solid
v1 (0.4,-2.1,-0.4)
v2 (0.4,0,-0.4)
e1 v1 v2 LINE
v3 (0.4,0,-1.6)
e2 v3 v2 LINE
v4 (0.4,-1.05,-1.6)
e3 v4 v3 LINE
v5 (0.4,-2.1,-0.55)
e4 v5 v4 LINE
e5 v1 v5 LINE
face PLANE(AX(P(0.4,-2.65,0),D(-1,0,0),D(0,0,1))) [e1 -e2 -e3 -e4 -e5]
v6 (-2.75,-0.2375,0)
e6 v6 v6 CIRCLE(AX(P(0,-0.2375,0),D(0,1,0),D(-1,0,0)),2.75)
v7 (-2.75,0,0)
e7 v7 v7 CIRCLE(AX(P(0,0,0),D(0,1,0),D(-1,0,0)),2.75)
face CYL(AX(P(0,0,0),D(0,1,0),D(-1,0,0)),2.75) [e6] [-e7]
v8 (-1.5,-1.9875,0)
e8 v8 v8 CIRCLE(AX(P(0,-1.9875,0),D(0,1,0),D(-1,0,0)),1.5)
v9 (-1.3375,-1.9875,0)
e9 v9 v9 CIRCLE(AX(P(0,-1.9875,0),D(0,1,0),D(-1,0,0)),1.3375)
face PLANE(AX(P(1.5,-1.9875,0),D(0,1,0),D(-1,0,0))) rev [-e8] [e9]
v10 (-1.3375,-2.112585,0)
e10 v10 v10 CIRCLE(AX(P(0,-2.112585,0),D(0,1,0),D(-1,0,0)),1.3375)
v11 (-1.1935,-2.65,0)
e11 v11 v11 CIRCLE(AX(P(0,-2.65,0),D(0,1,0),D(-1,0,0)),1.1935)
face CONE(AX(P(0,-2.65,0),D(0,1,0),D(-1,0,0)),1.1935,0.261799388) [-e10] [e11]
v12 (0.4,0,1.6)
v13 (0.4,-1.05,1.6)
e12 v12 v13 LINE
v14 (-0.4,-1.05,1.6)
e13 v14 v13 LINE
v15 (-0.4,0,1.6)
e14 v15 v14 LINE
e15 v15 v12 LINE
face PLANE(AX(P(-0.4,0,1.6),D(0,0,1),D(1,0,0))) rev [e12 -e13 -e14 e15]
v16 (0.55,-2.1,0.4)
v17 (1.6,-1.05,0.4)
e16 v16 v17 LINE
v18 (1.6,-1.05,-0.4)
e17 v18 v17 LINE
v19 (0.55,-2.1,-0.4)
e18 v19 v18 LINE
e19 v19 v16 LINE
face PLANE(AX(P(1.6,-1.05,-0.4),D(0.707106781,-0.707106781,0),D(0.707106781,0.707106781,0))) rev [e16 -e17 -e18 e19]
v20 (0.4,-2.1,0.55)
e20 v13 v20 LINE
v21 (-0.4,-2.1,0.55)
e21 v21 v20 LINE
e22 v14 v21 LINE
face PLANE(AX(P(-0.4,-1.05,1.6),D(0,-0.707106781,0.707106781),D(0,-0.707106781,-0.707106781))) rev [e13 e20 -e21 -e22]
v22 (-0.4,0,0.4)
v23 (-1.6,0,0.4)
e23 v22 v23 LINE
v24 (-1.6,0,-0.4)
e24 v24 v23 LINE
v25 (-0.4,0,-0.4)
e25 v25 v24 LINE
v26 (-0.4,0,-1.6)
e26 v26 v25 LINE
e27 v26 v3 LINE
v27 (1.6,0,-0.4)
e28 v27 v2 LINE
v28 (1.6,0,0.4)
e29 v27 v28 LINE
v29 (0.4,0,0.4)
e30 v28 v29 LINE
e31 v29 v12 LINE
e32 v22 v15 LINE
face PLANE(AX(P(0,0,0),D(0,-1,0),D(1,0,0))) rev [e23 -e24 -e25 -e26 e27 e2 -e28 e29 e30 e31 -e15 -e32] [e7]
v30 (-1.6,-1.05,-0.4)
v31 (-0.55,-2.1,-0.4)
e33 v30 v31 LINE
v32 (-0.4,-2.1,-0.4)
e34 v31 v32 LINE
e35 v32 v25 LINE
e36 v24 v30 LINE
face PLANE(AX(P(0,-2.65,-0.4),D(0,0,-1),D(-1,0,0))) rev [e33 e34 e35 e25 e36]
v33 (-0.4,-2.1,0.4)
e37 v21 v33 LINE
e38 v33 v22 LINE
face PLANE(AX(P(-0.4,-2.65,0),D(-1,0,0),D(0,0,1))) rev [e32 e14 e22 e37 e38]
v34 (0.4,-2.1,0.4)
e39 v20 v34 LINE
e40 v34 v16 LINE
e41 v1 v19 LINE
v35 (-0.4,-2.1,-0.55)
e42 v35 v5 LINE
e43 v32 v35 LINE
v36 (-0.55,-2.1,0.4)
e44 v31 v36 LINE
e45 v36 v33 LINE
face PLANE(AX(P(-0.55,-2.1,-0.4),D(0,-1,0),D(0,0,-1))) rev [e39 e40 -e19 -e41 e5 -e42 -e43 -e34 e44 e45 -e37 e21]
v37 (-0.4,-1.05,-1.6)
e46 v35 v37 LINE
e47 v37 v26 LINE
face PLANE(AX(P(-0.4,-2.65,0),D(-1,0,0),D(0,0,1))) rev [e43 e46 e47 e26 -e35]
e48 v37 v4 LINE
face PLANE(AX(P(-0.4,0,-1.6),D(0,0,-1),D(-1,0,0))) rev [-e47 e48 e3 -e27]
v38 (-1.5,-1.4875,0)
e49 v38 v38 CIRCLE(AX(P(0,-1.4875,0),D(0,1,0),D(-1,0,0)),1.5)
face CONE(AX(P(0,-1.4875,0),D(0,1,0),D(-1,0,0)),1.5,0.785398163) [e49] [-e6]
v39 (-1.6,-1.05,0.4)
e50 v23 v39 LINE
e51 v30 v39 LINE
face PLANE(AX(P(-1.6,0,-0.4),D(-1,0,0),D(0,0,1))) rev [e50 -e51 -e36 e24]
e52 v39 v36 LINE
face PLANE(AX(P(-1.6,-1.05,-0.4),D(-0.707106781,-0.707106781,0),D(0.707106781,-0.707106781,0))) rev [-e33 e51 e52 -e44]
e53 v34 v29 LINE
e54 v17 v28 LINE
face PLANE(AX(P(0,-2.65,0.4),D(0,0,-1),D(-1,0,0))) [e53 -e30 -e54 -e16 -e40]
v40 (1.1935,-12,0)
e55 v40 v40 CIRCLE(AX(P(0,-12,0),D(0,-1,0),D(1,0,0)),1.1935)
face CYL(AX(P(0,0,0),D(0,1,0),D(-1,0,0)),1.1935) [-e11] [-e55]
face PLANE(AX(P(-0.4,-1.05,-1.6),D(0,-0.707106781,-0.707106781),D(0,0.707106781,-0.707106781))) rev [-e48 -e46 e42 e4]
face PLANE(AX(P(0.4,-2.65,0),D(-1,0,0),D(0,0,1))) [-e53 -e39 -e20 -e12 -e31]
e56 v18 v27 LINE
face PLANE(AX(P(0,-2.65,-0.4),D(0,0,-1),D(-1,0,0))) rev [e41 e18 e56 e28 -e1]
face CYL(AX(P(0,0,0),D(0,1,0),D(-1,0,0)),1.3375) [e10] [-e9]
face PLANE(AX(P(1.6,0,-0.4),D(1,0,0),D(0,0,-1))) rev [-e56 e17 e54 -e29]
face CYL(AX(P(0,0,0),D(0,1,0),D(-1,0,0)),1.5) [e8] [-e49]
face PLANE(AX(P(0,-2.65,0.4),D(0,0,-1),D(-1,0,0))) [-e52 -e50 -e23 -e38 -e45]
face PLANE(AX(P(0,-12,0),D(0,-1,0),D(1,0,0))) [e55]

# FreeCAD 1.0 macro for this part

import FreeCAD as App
import Part
import Sketcher
Q = App.Units.Quantity

doc = App.newDocument("Part")
body = doc.addObject("PartDesign::Body", "Body")

sketch1 = doc.addObject("Sketcher::SketchObject", "Sketch")
body.addObject(sketch1)
sketch1.AttachmentSupport = (doc.XY_Plane, [""])
sketch1.MapMode = "FlatFace"
sketch1.addGeometry(Part.LineSegment(App.Vector(2.75, 0, 0), App.Vector(0, 0, 0)), False)
sketch1.addGeometry(Part.LineSegment(App.Vector(0, 0, 0), App.Vector(0, -8, 0)), False)
sketch1.addGeometry(Part.LineSegment(App.Vector(0, -8, 0), App.Vector(1.1935, -8, 0)), False)
sketch1.addGeometry(Part.LineSegment(App.Vector(1.1935, -8, 0), App.Vector(1.1935, -2.65, 0)), False)
sketch1.addGeometry(Part.LineSegment(App.Vector(1.1935, -2.65, 0), App.Vector(1.3375, -2.112585, 0)), False)
sketch1.addGeometry(Part.LineSegment(App.Vector(1.3375, -2.112585, 0), App.Vector(1.3375, -1.9875, 0)), False)
sketch1.addGeometry(Part.LineSegment(App.Vector(1.3375, -1.9875, 0), App.Vector(1.5, -1.9875, 0)), False)
sketch1.addGeometry(Part.LineSegment(App.Vector(1.5, -1.9875, 0), App.Vector(1.5, -1.4875, 0)), False)
sketch1.addGeometry(Part.LineSegment(App.Vector(1.5, -1.4875, 0), App.Vector(2.75, -0.2375, 0)), False)
sketch1.addGeometry(Part.LineSegment(App.Vector(2.75, -0.2375, 0), App.Vector(2.75, 0, 0)), False)
sketch1.addConstraint(Sketcher.Constraint("Coincident", 0, 2, 1, 1))
sketch1.addConstraint(Sketcher.Constraint("Coincident", 1, 2, 2, 1))
sketch1.addConstraint(Sketcher.Constraint("Coincident", 2, 2, 3, 1))
sketch1.addConstraint(Sketcher.Constraint("Coincident", 3, 2, 4, 1))
sketch1.addConstraint(Sketcher.Constraint("Coincident", 4, 2, 5, 1))
sketch1.addConstraint(Sketcher.Constraint("Coincident", 5, 2, 6, 1))
sketch1.addConstraint(Sketcher.Constraint("Coincident", 6, 2, 7, 1))
sketch1.addConstraint(Sketcher.Constraint("Coincident", 7, 2, 8, 1))
sketch1.addConstraint(Sketcher.Constraint("Coincident", 8, 2, 9, 1))
sketch1.addConstraint(Sketcher.Constraint("Coincident", 9, 2, 0, 1))
sketch1.addConstraint(Sketcher.Constraint("Horizontal", 0))
sketch1.addConstraint(Sketcher.Constraint("Vertical", 1))
sketch1.addConstraint(Sketcher.Constraint("Horizontal", 2))
sketch1.addConstraint(Sketcher.Constraint("Vertical", 3))
sketch1.addConstraint(Sketcher.Constraint("Vertical", 5))
sketch1.addConstraint(Sketcher.Constraint("Horizontal", 6))
sketch1.addConstraint(Sketcher.Constraint("Vertical", 7))
sketch1.addConstraint(Sketcher.Constraint("Vertical", 9))
sketch1.addConstraint(Sketcher.Constraint("Coincident", 0, 2, -1, 1))
sketch1.addConstraint(Sketcher.Constraint("DistanceY", 1, 2, 1, 1, 8.0))
sketch1.addConstraint(Sketcher.Constraint("Angle", 4, Q("75 deg")))
sketch1.addConstraint(Sketcher.Constraint("Angle", 8, Q("45 deg")))
sketch1.addConstraint(Sketcher.Constraint("DistanceY", 7, 1, 7, 2, 0.5))
sketch1.addConstraint(Sketcher.Constraint("DistanceX", 0, 2, 0, 1, 2.75))
sketch1.addConstraint(Sketcher.Constraint("DistanceY", 3, 1, 3, 2, 5.35))
sketch1.addConstraint(Sketcher.Constraint("DistanceX", -1, 1, 6, 2, 1.5))
sketch1.addConstraint(Sketcher.Constraint("DistanceX", 2, 1, 2, 2, 1.1935))
sketch1.addConstraint(Sketcher.Constraint("DistanceX", 6, 1, 6, 2, 0.1625))
sketch1.addConstraint(Sketcher.Constraint("DistanceY", 9, 1, 9, 2, 0.2375))
revolution = doc.addObject("PartDesign::Revolution", "Revolution")
body.addObject(revolution)
revolution.Profile = sketch1
revolution.ReferenceAxis = (sketch1, ["V_Axis"])
revolution.Angle = 360

sketch2 = doc.addObject("Sketcher::SketchObject", "Sketch001")
body.addObject(sketch2)
sketch2.AttachmentSupport = (doc.XY_Plane, [""])
sketch2.MapMode = "FlatFace"
sketch2.addGeometry(Part.LineSegment(App.Vector(-0.55, -2.1, 0), App.Vector(0.55, -2.1, 0)), False)
sketch2.addGeometry(Part.LineSegment(App.Vector(0.55, -2.1, 0), App.Vector(1.6, -1.05, 0)), False)
sketch2.addGeometry(Part.LineSegment(App.Vector(1.6, -1.05, 0), App.Vector(1.6, 0, 0)), False)
sketch2.addGeometry(Part.LineSegment(App.Vector(1.6, 0, 0), App.Vector(-1.6, 0, 0)), False)
sketch2.addGeometry(Part.LineSegment(App.Vector(-1.6, 0, 0), App.Vector(-1.6, -1.05, 0)), False)
sketch2.addGeometry(Part.LineSegment(App.Vector(-1.6, -1.05, 0), App.Vector(-0.55, -2.1, 0)), False)
sketch2.addConstraint(Sketcher.Constraint("Coincident", 0, 2, 1, 1))
sketch2.addConstraint(Sketcher.Constraint("Coincident", 1, 2, 2, 1))
sketch2.addConstraint(Sketcher.Constraint("Coincident", 2, 2, 3, 1))
sketch2.addConstraint(Sketcher.Constraint("Coincident", 3, 2, 4, 1))
sketch2.addConstraint(Sketcher.Constraint("Coincident", 4, 2, 5, 1))
sketch2.addConstraint(Sketcher.Constraint("Coincident", 5, 2, 0, 1))
sketch2.addConstraint(Sketcher.Constraint("Horizontal", 0))
sketch2.addConstraint(Sketcher.Constraint("Vertical", 2))
sketch2.addConstraint(Sketcher.Constraint("Horizontal", 3))
sketch2.addConstraint(Sketcher.Constraint("Vertical", 4))
sketch2.addConstraint(Sketcher.Constraint("Symmetric", 2, 2, 3, 2, -1, 1))
sketch2.addConstraint(Sketcher.Constraint("Perpendicular", 1, 5))
sketch2.addConstraint(Sketcher.Constraint("Horizontal", 1, 2, 4, 2))
sketch2.addConstraint(Sketcher.Constraint("Equal", 1, 5))
sketch2.addConstraint(Sketcher.Constraint("DistanceX", 0, 1, 0, 2, 1.1))
sketch2.addConstraint(Sketcher.Constraint("DistanceX", 3, 2, 3, 1, 3.2))
sketch2.addConstraint(Sketcher.Constraint("DistanceY", 2, 1, 2, 2, 1.05))
pocket1 = doc.addObject("PartDesign::Pocket", "Pocket")
body.addObject(pocket1)
pocket1.Profile = sketch2
pocket1.Type = "TwoLengths"
pocket1.Length = 0.4
pocket1.Length2 = 0.4
pocket1.Reversed = True

sketch3 = doc.addObject("Sketcher::SketchObject", "Sketch002")
body.addObject(sketch3)
sketch3.AttachmentSupport = (doc.YZ_Plane, [""])
sketch3.MapMode = "FlatFace"
sketch3.addGeometry(Part.LineSegment(App.Vector(-2.1, 0.55, 0), App.Vector(-2.1, -0.55, 0)), False)
sketch3.addGeometry(Part.LineSegment(App.Vector(-2.1, -0.55, 0), App.Vector(-1.05, -1.6, 0)), False)
sketch3.addGeometry(Part.LineSegment(App.Vector(-1.05, -1.6, 0), App.Vector(0, -1.6, 0)), False)
sketch3.addGeometry(Part.LineSegment(App.Vector(0, -1.6, 0), App.Vector(0, 1.6, 0)), False)
sketch3.addGeometry(Part.LineSegment(App.Vector(0, 1.6, 0), App.Vector(-1.05, 1.6, 0)), False)
sketch3.addGeometry(Part.LineSegment(App.Vector(-1.05, 1.6, 0), App.Vector(-2.1, 0.55, 0)), False)
sketch3.addConstraint(Sketcher.Constraint("Coincident", 0, 2, 1, 1))
sketch3.addConstraint(Sketcher.Constraint("Coincident", 1, 2, 2, 1))
sketch3.addConstraint(Sketcher.Constraint("Coincident", 2, 2, 3, 1))
sketch3.addConstraint(Sketcher.Constraint("Coincident", 3, 2, 4, 1))
sketch3.addConstraint(Sketcher.Constraint("Coincident", 4, 2, 5, 1))
sketch3.addConstraint(Sketcher.Constraint("Coincident", 5, 2, 0, 1))
sketch3.addConstraint(Sketcher.Constraint("Vertical", 0))
sketch3.addConstraint(Sketcher.Constraint("Horizontal", 2))
sketch3.addConstraint(Sketcher.Constraint("Vertical", 3))
sketch3.addConstraint(Sketcher.Constraint("Horizontal", 4))
sketch3.addConstraint(Sketcher.Constraint("Symmetric", 2, 2, 3, 2, -1, 1))
sketch3.addConstraint(Sketcher.Constraint("Perpendicular", 1, 5))
sketch3.addConstraint(Sketcher.Constraint("Vertical", 1, 2, 4, 2))
sketch3.addConstraint(Sketcher.Constraint("Equal", 1, 5))
sketch3.addConstraint(Sketcher.Constraint("DistanceY", 0, 2, 0, 1, 1.1))
sketch3.addConstraint(Sketcher.Constraint("DistanceY", 3, 1, 3, 2, 3.2))
sketch3.addConstraint(Sketcher.Constraint("DistanceX", 2, 1, 2, 2, 1.05))
pocket2 = doc.addObject("PartDesign::Pocket", "Pocket001")
body.addObject(pocket2)
pocket2.Profile = sketch3
pocket2.Type = "TwoLengths"
pocket2.Length = 0.4
pocket2.Length2 = 0.4
pocket2.Reversed = True

sketch4 = doc.addObject("Sketcher::SketchObject", "Sketch003")
body.addObject(sketch4)
sketch4.AttachmentSupport = (doc.XZ_Plane, [""])
sketch4.MapMode = "FlatFace"
sketch4.AttachmentOffset = App.Placement(App.Vector(0, 0, 12), App.Rotation())
sketch4.addGeometry(Part.Circle(App.Vector(0, 0, 0), App.Vector(0, 0, 1), 1.1935), False)
sketch4.addConstraint(Sketcher.Constraint("Coincident", 0, 3, -1, 1))
sketch4.addConstraint(Sketcher.Constraint("Diameter", 0, 2.387))
pad1 = doc.addObject("PartDesign::Pad", "Pad")
body.addObject(pad1)
pad1.Profile = sketch4
pad1.Length = 4
pad1.Reversed = True

doc.recompute()
